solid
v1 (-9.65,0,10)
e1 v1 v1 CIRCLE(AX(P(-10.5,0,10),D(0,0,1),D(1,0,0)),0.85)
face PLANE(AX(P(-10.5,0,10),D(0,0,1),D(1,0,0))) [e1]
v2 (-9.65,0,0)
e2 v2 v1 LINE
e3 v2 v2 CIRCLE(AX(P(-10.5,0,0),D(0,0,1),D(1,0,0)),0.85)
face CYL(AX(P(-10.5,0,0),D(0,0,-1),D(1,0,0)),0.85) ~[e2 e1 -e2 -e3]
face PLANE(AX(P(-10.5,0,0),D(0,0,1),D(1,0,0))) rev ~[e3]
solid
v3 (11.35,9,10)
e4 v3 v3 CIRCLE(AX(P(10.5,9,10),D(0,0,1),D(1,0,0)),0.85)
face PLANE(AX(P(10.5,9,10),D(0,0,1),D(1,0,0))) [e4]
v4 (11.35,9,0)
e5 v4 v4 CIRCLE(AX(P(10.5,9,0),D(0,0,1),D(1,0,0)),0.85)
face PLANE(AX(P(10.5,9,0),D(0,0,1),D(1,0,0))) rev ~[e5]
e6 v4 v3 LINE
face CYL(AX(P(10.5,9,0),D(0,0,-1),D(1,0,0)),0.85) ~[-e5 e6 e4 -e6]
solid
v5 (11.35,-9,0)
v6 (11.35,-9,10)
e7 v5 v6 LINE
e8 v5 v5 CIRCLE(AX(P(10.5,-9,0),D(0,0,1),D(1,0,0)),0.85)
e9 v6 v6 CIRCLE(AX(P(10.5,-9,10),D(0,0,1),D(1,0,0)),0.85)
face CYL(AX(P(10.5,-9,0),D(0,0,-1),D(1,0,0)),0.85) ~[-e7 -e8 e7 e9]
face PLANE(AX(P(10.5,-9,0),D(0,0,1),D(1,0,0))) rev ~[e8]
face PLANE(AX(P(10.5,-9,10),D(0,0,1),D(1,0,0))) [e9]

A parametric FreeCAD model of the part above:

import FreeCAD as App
import Part
import Sketcher

V = App.Vector

doc = App.newDocument("Part")
body = doc.addObject("PartDesign::Body", "Body")

# Sketch on XY plane
sketch1 = doc.addObject("Sketcher::SketchObject", "Sketch")
body.addObject(sketch1)
sketch1.AttachmentSupport = (doc.XY_Plane, [""])
sketch1.MapMode = "FlatFace"
sketch1.addGeometry(Part.Circle(V(10.5, 9, 0), V(0, 0, 1), 0.8), False)
sketch1.addConstraint(Sketcher.Constraint("Diameter", 0, 1.7))
sketch1.addConstraint(Sketcher.Constraint("DistanceY", -1, 1, 0, 3, 9.0))
sketch1.addConstraint(Sketcher.Constraint("DistanceX", -1, 1, 0, 3, 10.5))
pad1 = doc.addObject("PartDesign::Pad", "Pad")
body.addObject(pad1)
pad1.Profile = sketch1
pad1.Length = 10
body2 = doc.addObject("PartDesign::Body", "Body001")

# Sketch on XY plane
sketch2 = doc.addObject("Sketcher::SketchObject", "Sketch001")
body2.addObject(sketch2)
sketch2.AttachmentSupport = (doc.getObject("XY_Plane001"), [""])
sketch2.MapMode = "FlatFace"
sketch2.addGeometry(Part.Circle(V(10.5, -9, 0), V(0, 0, 1), 0.8), False)
sketch2.addConstraint(Sketcher.Constraint("Diameter", 0, 1.7))
sketch2.addConstraint(Sketcher.Constraint("DistanceY", 0, 3, -1, 1, 9.0))
sketch2.addConstraint(Sketcher.Constraint("DistanceX", -1, 1, 0, 3, 10.5))
pad2 = doc.addObject("PartDesign::Pad", "Pad001")
body2.addObject(pad2)
pad2.Profile = sketch2
pad2.Length = 10
body3 = doc.addObject("PartDesign::Body", "Body002")

# Sketch on XY plane
sketch3 = doc.addObject("Sketcher::SketchObject", "Sketch002")
body3.addObject(sketch3)
sketch3.AttachmentSupport = (doc.getObject("XY_Plane002"), [""])
sketch3.MapMode = "FlatFace"
sketch3.addGeometry(Part.Circle(V(-10.5, 0, 0), V(0, 0, 1), 0.8), False)
sketch3.addConstraint(Sketcher.Constraint("PointOnObject", 0, 3, -1))
sketch3.addConstraint(Sketcher.Constraint("Diameter", 0, 1.7))
sketch3.addConstraint(Sketcher.Constraint("DistanceX", 0, 3, -1, 1, 10.5))
pad3 = doc.addObject("PartDesign::Pad", "Pad002")
body3.addObject(pad3)
pad3.Profile = sketch3
pad3.Length = 10

doc.recompute()
